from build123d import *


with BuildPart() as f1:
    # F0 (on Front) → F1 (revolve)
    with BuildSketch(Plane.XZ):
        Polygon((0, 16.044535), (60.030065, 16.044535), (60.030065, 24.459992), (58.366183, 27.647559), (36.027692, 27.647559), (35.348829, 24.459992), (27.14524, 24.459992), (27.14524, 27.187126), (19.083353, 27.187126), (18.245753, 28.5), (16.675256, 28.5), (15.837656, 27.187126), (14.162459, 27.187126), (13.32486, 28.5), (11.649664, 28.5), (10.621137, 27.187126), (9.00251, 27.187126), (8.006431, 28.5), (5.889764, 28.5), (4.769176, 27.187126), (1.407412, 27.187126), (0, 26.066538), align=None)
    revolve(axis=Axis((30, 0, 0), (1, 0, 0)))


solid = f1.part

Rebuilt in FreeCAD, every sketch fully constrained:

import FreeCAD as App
import Part
import Sketcher
from FreeCAD import Vector

doc = App.newDocument("Part")
body = doc.addObject("PartDesign::Body", "Body")

sketch1 = body.newObject("Sketcher::SketchObject", "Sketch")
sketch1.AttachmentSupport = (doc.getObject("XZ_Plane"), [""])
sketch1.MapMode = "FlatFace"
sketch1.addGeometry([
    Part.LineSegment(Vector(0, 16.044535, 0), Vector(60.030065, 16.044535, 0)),
    Part.LineSegment(Vector(60.030065, 16.044535, 0), Vector(60.030065, 24.459992, 0)),
    Part.LineSegment(Vector(60.030065, 24.459992, 0), Vector(58.366183, 27.647559, 0)),
    Part.LineSegment(Vector(58.366183, 27.647559, 0), Vector(36.027692, 27.647559, 0)),
    Part.LineSegment(Vector(36.027692, 27.647559, 0), Vector(35.348829, 24.459992, 0)),
    Part.LineSegment(Vector(35.348829, 24.459992, 0), Vector(27.14524, 24.459992, 0)),
    Part.LineSegment(Vector(27.14524, 24.459992, 0), Vector(27.14524, 27.187126, 0)),
    Part.LineSegment(Vector(27.14524, 27.187126, 0), Vector(19.083353, 27.187126, 0)),
    Part.LineSegment(Vector(19.083353, 27.187126, 0), Vector(18.245753, 28.5, 0)),
    Part.LineSegment(Vector(18.245753, 28.5, 0), Vector(16.675256, 28.5, 0)),
    Part.LineSegment(Vector(16.675256, 28.5, 0), Vector(15.837656, 27.187126, 0)),
    Part.LineSegment(Vector(15.837656, 27.187126, 0), Vector(14.162459, 27.187126, 0)),
    Part.LineSegment(Vector(14.162459, 27.187126, 0), Vector(13.32486, 28.5, 0)),
    Part.LineSegment(Vector(13.32486, 28.5, 0), Vector(11.649664, 28.5, 0)),
    Part.LineSegment(Vector(11.649664, 28.5, 0), Vector(10.621137, 27.187126, 0)),
    Part.LineSegment(Vector(10.621137, 27.187126, 0), Vector(9.00251, 27.187126, 0)),
    Part.LineSegment(Vector(9.00251, 27.187126, 0), Vector(8.006431, 28.5, 0)),
    Part.LineSegment(Vector(8.006431, 28.5, 0), Vector(5.889764, 28.5, 0)),
    Part.LineSegment(Vector(5.889764, 28.5, 0), Vector(4.769176, 27.187126, 0)),
    Part.LineSegment(Vector(4.769176, 27.187126, 0), Vector(1.407412, 27.187126, 0)),
    Part.LineSegment(Vector(1.407412, 27.187126, 0), Vector(0, 26.066538, 0)),
    Part.LineSegment(Vector(0, 26.066538, 0), Vector(0, 16.044535, 0)),
], False)
sketch1.addConstraint([
    Sketcher.Constraint("Coincident", 0, 2, 1, 1),
    Sketcher.Constraint("Coincident", 1, 2, 2, 1),
    Sketcher.Constraint("Coincident", 2, 2, 3, 1),
    Sketcher.Constraint("Coincident", 3, 2, 4, 1),
    Sketcher.Constraint("Coincident", 4, 2, 5, 1),
    Sketcher.Constraint("Coincident", 5, 2, 6, 1),
    Sketcher.Constraint("Coincident", 6, 2, 7, 1),
    Sketcher.Constraint("Coincident", 7, 2, 8, 1),
    Sketcher.Constraint("Coincident", 8, 2, 9, 1),
    Sketcher.Constraint("Coincident", 9, 2, 10, 1),
    Sketcher.Constraint("Coincident", 10, 2, 11, 1),
    Sketcher.Constraint("Coincident", 11, 2, 12, 1),
    Sketcher.Constraint("Coincident", 12, 2, 13, 1),
    Sketcher.Constraint("Coincident", 13, 2, 14, 1),
    Sketcher.Constraint("Coincident", 14, 2, 15, 1),
    Sketcher.Constraint("Coincident", 15, 2, 16, 1),
    Sketcher.Constraint("Coincident", 16, 2, 17, 1),
    Sketcher.Constraint("Coincident", 17, 2, 18, 1),
    Sketcher.Constraint("Coincident", 18, 2, 19, 1),
    Sketcher.Constraint("Coincident", 19, 2, 20, 1),
    Sketcher.Constraint("Coincident", 20, 2, 21, 1),
    Sketcher.Constraint("Coincident", 21, 2, 0, 1),
    Sketcher.Constraint("Horizontal", 0),
    Sketcher.Constraint("Vertical", 1),
    Sketcher.Constraint("Horizontal", 3),
    Sketcher.Constraint("Horizontal", 5),
    Sketcher.Constraint("Vertical", 6),
    Sketcher.Constraint("Horizontal", 7),
    Sketcher.Constraint("Horizontal", 9),
    Sketcher.Constraint("Horizontal", 11),
    Sketcher.Constraint("Horizontal", 13),
    Sketcher.Constraint("Horizontal", 15),
    Sketcher.Constraint("Horizontal", 17),
    Sketcher.Constraint("Horizontal", 19),
    Sketcher.Constraint("Vertical", 21),
    Sketcher.Constraint("PointOnObject", 20, 2, -2),
    Sketcher.Constraint("Parallel", 8, 12),
    Sketcher.Constraint("Horizontal", 1, 2, 4, 2),
    Sketcher.Constraint("Horizontal", 7, 2, 10, 2),
    Sketcher.Constraint("Horizontal", 9, 2, 12, 2),
    Sketcher.Constraint("Horizontal", 11, 2, 14, 2),
    Sketcher.Constraint("Horizontal", 13, 2, 16, 2),
    Sketcher.Constraint("Horizontal", 15, 2, 18, 2),
    Sketcher.Constraint("Equal", 11, 13),
    Sketcher.Constraint("Equal", 8, 10),
    Sketcher.Constraint("DistanceY", -1, 1, 8, 2, 28.5),
    Sketcher.Constraint("DistanceX", 3, 2, 3, 1, 22.338491),
    Sketcher.Constraint("DistanceX", 5, 2, 5, 1, 8.203589),
    Sketcher.Constraint("DistanceX", 8, 2, 7, 2, 0.8376),
    Sketcher.Constraint("DistanceX", 17, 2, 13, 2, 5.7599),
    Sketcher.Constraint("Distance", 8, 1.557309),
    Sketcher.Constraint("Distance", 16, 1.647972),
    Sketcher.Constraint("Distance", 18, 1.726081),
    Sketcher.Constraint("DistanceX", 0, 1, 0, 2, 60.030065),
    Sketcher.Constraint("DistanceX", 7, 2, 7, 1, 8.061887),
    Sketcher.Constraint("DistanceX", 9, 2, 9, 1, 1.570497),
    Sketcher.Constraint("DistanceX", 11, 2, 11, 1, 1.675197),
    Sketcher.Constraint("DistanceX", 15, 2, 15, 1, 1.618627),
    Sketcher.Constraint("DistanceX", 17, 2, 17, 1, 2.116667),
    Sketcher.Constraint("DistanceX", 19, 2, 19, 1, 3.361764),
    Sketcher.Constraint("DistanceY", 1, 1, 1, 2, 8.415457),
    Sketcher.Constraint("DistanceY", 6, 1, 6, 2, 2.727134),
    Sketcher.Constraint("DistanceY", 21, 2, 21, 1, 10.022003),
    Sketcher.Constraint("DistanceY", -1, 1, 2, 2, 27.647559),
    Sketcher.Constraint("DistanceX", -1, 1, 4, 2, 35.348829),
    Sketcher.Constraint("DistanceX", 7, 2, 3, 2, 16.944339),
])
revolution = body.newObject("PartDesign::Revolution", "Revolution")
revolution.Profile = sketch1
revolution.ReferenceAxis = (sketch1, ["H_Axis"])
revolution.Angle = 360

doc.recompute()
